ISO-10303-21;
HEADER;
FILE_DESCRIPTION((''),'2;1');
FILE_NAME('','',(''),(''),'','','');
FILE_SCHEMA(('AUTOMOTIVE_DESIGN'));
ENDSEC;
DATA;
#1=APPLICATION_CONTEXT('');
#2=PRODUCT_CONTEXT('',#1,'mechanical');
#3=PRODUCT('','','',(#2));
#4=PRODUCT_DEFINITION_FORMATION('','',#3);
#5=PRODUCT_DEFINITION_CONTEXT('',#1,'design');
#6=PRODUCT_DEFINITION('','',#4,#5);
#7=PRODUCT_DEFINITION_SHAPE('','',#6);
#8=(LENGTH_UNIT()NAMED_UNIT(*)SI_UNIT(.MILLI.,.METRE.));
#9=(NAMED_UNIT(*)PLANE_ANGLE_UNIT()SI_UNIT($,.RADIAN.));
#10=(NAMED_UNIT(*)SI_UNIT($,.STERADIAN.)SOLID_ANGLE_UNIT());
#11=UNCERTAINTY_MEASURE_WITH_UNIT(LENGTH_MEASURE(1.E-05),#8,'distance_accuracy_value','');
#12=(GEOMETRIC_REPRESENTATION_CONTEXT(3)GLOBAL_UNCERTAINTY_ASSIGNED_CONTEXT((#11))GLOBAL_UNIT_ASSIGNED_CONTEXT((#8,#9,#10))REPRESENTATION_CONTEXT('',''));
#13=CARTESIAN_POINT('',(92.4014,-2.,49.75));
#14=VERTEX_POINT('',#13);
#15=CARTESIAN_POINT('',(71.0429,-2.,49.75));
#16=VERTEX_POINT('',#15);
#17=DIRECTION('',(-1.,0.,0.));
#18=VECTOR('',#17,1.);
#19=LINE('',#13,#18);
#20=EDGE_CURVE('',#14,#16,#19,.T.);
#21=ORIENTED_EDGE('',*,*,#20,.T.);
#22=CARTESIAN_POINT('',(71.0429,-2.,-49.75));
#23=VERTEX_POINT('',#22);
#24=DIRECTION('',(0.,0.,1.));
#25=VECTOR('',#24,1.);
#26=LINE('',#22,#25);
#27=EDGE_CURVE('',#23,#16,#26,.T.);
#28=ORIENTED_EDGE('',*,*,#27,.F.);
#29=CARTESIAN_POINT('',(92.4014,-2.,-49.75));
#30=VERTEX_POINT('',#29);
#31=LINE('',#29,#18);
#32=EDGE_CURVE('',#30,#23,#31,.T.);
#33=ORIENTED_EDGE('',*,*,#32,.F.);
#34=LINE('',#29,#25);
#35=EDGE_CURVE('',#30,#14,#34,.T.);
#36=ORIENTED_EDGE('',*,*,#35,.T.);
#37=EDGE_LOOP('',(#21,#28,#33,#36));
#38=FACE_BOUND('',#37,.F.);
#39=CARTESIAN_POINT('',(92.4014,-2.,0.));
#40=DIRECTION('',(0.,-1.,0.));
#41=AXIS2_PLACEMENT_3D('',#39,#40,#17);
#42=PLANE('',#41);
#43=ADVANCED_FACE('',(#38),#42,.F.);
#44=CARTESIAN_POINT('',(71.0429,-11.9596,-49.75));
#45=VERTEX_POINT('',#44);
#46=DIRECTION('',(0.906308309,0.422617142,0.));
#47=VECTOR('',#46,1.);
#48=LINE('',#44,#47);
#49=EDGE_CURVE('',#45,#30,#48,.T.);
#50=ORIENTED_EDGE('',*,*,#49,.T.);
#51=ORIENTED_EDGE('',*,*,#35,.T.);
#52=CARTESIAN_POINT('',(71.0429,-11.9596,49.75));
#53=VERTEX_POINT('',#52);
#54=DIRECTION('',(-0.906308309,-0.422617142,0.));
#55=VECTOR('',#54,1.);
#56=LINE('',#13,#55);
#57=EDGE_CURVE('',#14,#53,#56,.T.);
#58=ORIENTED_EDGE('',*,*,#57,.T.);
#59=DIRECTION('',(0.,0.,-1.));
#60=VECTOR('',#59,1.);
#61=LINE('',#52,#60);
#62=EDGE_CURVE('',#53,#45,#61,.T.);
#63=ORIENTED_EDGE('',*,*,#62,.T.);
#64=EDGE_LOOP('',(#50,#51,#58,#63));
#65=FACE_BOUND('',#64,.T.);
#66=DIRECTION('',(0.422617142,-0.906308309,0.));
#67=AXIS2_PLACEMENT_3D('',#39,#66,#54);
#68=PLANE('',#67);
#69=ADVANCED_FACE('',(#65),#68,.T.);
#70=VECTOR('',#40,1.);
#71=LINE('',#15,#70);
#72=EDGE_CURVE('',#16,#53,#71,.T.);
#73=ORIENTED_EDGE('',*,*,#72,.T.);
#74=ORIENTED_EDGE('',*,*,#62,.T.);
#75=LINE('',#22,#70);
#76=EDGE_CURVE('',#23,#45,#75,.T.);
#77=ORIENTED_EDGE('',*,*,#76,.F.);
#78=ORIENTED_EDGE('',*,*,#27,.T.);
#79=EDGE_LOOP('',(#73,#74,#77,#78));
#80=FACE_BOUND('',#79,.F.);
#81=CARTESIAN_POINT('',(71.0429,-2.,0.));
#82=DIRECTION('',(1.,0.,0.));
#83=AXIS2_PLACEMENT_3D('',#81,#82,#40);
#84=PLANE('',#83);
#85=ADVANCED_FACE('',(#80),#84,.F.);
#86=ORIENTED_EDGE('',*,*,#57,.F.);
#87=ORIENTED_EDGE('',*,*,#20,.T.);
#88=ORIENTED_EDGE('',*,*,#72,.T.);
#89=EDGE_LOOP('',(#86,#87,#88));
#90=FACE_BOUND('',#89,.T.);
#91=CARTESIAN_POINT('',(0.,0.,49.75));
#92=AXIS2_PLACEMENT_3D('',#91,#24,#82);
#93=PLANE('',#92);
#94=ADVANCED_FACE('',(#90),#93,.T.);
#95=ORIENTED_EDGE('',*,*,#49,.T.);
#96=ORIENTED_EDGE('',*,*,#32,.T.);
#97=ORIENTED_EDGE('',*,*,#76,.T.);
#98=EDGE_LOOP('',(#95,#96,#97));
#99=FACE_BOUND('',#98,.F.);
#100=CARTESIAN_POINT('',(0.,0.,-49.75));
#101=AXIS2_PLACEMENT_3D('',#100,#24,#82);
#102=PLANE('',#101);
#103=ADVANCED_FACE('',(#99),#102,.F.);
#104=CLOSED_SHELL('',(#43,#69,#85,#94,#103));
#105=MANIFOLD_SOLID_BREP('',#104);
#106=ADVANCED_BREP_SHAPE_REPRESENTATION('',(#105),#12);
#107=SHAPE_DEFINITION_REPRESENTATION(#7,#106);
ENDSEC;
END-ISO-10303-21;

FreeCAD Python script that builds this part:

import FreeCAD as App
import Part
import Sketcher

V = App.Vector
Q = App.Units.Quantity


def add_polygon(sketch, points):
    """Adds a closed chain of lines whose ends are joined by coincident constraints."""
    first, n = sketch.GeometryCount, len(points)
    for a, b in zip(points, points[1:] + points[:1]):
        sketch.addGeometry(Part.LineSegment(App.Vector(*a, 0), App.Vector(*b, 0)), False)
    for i in range(n):
        sketch.addConstraint(Sketcher.Constraint("Coincident", first + i, 2, first + (i + 1) % n, 1))

doc = App.newDocument("Part")
body = doc.addObject("PartDesign::Body", "Body")

# Sketch on XY plane
sketch1 = body.newObject("Sketcher::SketchObject", "Sketch")
sketch1.AttachmentSupport = (doc.getObject("XY_Plane"), [""])
sketch1.MapMode = "FlatFace"
add_polygon(sketch1, [(71, -12), (92, -2), (71, -2)])  # lines 0-2
sketch1.addConstraint([
    Sketcher.Constraint("Horizontal", 1),
    Sketcher.Constraint("Vertical", 2),
    Sketcher.Constraint("Angle", 0, Q("25 deg")),
    Sketcher.Constraint("DistanceY", 0, 2, -1, 1, 2.0),
    Sketcher.Constraint("DistanceX", 1, 2, 1, 1, 21.3585),
    Sketcher.Constraint("DistanceX", -1, 1, 1, 2, 71.043),
])
pad1 = body.newObject("PartDesign::Pad", "Pad")
pad1.Profile = sketch1
pad1.Length = 99.5
pad1.Midplane = True

doc.recompute()
